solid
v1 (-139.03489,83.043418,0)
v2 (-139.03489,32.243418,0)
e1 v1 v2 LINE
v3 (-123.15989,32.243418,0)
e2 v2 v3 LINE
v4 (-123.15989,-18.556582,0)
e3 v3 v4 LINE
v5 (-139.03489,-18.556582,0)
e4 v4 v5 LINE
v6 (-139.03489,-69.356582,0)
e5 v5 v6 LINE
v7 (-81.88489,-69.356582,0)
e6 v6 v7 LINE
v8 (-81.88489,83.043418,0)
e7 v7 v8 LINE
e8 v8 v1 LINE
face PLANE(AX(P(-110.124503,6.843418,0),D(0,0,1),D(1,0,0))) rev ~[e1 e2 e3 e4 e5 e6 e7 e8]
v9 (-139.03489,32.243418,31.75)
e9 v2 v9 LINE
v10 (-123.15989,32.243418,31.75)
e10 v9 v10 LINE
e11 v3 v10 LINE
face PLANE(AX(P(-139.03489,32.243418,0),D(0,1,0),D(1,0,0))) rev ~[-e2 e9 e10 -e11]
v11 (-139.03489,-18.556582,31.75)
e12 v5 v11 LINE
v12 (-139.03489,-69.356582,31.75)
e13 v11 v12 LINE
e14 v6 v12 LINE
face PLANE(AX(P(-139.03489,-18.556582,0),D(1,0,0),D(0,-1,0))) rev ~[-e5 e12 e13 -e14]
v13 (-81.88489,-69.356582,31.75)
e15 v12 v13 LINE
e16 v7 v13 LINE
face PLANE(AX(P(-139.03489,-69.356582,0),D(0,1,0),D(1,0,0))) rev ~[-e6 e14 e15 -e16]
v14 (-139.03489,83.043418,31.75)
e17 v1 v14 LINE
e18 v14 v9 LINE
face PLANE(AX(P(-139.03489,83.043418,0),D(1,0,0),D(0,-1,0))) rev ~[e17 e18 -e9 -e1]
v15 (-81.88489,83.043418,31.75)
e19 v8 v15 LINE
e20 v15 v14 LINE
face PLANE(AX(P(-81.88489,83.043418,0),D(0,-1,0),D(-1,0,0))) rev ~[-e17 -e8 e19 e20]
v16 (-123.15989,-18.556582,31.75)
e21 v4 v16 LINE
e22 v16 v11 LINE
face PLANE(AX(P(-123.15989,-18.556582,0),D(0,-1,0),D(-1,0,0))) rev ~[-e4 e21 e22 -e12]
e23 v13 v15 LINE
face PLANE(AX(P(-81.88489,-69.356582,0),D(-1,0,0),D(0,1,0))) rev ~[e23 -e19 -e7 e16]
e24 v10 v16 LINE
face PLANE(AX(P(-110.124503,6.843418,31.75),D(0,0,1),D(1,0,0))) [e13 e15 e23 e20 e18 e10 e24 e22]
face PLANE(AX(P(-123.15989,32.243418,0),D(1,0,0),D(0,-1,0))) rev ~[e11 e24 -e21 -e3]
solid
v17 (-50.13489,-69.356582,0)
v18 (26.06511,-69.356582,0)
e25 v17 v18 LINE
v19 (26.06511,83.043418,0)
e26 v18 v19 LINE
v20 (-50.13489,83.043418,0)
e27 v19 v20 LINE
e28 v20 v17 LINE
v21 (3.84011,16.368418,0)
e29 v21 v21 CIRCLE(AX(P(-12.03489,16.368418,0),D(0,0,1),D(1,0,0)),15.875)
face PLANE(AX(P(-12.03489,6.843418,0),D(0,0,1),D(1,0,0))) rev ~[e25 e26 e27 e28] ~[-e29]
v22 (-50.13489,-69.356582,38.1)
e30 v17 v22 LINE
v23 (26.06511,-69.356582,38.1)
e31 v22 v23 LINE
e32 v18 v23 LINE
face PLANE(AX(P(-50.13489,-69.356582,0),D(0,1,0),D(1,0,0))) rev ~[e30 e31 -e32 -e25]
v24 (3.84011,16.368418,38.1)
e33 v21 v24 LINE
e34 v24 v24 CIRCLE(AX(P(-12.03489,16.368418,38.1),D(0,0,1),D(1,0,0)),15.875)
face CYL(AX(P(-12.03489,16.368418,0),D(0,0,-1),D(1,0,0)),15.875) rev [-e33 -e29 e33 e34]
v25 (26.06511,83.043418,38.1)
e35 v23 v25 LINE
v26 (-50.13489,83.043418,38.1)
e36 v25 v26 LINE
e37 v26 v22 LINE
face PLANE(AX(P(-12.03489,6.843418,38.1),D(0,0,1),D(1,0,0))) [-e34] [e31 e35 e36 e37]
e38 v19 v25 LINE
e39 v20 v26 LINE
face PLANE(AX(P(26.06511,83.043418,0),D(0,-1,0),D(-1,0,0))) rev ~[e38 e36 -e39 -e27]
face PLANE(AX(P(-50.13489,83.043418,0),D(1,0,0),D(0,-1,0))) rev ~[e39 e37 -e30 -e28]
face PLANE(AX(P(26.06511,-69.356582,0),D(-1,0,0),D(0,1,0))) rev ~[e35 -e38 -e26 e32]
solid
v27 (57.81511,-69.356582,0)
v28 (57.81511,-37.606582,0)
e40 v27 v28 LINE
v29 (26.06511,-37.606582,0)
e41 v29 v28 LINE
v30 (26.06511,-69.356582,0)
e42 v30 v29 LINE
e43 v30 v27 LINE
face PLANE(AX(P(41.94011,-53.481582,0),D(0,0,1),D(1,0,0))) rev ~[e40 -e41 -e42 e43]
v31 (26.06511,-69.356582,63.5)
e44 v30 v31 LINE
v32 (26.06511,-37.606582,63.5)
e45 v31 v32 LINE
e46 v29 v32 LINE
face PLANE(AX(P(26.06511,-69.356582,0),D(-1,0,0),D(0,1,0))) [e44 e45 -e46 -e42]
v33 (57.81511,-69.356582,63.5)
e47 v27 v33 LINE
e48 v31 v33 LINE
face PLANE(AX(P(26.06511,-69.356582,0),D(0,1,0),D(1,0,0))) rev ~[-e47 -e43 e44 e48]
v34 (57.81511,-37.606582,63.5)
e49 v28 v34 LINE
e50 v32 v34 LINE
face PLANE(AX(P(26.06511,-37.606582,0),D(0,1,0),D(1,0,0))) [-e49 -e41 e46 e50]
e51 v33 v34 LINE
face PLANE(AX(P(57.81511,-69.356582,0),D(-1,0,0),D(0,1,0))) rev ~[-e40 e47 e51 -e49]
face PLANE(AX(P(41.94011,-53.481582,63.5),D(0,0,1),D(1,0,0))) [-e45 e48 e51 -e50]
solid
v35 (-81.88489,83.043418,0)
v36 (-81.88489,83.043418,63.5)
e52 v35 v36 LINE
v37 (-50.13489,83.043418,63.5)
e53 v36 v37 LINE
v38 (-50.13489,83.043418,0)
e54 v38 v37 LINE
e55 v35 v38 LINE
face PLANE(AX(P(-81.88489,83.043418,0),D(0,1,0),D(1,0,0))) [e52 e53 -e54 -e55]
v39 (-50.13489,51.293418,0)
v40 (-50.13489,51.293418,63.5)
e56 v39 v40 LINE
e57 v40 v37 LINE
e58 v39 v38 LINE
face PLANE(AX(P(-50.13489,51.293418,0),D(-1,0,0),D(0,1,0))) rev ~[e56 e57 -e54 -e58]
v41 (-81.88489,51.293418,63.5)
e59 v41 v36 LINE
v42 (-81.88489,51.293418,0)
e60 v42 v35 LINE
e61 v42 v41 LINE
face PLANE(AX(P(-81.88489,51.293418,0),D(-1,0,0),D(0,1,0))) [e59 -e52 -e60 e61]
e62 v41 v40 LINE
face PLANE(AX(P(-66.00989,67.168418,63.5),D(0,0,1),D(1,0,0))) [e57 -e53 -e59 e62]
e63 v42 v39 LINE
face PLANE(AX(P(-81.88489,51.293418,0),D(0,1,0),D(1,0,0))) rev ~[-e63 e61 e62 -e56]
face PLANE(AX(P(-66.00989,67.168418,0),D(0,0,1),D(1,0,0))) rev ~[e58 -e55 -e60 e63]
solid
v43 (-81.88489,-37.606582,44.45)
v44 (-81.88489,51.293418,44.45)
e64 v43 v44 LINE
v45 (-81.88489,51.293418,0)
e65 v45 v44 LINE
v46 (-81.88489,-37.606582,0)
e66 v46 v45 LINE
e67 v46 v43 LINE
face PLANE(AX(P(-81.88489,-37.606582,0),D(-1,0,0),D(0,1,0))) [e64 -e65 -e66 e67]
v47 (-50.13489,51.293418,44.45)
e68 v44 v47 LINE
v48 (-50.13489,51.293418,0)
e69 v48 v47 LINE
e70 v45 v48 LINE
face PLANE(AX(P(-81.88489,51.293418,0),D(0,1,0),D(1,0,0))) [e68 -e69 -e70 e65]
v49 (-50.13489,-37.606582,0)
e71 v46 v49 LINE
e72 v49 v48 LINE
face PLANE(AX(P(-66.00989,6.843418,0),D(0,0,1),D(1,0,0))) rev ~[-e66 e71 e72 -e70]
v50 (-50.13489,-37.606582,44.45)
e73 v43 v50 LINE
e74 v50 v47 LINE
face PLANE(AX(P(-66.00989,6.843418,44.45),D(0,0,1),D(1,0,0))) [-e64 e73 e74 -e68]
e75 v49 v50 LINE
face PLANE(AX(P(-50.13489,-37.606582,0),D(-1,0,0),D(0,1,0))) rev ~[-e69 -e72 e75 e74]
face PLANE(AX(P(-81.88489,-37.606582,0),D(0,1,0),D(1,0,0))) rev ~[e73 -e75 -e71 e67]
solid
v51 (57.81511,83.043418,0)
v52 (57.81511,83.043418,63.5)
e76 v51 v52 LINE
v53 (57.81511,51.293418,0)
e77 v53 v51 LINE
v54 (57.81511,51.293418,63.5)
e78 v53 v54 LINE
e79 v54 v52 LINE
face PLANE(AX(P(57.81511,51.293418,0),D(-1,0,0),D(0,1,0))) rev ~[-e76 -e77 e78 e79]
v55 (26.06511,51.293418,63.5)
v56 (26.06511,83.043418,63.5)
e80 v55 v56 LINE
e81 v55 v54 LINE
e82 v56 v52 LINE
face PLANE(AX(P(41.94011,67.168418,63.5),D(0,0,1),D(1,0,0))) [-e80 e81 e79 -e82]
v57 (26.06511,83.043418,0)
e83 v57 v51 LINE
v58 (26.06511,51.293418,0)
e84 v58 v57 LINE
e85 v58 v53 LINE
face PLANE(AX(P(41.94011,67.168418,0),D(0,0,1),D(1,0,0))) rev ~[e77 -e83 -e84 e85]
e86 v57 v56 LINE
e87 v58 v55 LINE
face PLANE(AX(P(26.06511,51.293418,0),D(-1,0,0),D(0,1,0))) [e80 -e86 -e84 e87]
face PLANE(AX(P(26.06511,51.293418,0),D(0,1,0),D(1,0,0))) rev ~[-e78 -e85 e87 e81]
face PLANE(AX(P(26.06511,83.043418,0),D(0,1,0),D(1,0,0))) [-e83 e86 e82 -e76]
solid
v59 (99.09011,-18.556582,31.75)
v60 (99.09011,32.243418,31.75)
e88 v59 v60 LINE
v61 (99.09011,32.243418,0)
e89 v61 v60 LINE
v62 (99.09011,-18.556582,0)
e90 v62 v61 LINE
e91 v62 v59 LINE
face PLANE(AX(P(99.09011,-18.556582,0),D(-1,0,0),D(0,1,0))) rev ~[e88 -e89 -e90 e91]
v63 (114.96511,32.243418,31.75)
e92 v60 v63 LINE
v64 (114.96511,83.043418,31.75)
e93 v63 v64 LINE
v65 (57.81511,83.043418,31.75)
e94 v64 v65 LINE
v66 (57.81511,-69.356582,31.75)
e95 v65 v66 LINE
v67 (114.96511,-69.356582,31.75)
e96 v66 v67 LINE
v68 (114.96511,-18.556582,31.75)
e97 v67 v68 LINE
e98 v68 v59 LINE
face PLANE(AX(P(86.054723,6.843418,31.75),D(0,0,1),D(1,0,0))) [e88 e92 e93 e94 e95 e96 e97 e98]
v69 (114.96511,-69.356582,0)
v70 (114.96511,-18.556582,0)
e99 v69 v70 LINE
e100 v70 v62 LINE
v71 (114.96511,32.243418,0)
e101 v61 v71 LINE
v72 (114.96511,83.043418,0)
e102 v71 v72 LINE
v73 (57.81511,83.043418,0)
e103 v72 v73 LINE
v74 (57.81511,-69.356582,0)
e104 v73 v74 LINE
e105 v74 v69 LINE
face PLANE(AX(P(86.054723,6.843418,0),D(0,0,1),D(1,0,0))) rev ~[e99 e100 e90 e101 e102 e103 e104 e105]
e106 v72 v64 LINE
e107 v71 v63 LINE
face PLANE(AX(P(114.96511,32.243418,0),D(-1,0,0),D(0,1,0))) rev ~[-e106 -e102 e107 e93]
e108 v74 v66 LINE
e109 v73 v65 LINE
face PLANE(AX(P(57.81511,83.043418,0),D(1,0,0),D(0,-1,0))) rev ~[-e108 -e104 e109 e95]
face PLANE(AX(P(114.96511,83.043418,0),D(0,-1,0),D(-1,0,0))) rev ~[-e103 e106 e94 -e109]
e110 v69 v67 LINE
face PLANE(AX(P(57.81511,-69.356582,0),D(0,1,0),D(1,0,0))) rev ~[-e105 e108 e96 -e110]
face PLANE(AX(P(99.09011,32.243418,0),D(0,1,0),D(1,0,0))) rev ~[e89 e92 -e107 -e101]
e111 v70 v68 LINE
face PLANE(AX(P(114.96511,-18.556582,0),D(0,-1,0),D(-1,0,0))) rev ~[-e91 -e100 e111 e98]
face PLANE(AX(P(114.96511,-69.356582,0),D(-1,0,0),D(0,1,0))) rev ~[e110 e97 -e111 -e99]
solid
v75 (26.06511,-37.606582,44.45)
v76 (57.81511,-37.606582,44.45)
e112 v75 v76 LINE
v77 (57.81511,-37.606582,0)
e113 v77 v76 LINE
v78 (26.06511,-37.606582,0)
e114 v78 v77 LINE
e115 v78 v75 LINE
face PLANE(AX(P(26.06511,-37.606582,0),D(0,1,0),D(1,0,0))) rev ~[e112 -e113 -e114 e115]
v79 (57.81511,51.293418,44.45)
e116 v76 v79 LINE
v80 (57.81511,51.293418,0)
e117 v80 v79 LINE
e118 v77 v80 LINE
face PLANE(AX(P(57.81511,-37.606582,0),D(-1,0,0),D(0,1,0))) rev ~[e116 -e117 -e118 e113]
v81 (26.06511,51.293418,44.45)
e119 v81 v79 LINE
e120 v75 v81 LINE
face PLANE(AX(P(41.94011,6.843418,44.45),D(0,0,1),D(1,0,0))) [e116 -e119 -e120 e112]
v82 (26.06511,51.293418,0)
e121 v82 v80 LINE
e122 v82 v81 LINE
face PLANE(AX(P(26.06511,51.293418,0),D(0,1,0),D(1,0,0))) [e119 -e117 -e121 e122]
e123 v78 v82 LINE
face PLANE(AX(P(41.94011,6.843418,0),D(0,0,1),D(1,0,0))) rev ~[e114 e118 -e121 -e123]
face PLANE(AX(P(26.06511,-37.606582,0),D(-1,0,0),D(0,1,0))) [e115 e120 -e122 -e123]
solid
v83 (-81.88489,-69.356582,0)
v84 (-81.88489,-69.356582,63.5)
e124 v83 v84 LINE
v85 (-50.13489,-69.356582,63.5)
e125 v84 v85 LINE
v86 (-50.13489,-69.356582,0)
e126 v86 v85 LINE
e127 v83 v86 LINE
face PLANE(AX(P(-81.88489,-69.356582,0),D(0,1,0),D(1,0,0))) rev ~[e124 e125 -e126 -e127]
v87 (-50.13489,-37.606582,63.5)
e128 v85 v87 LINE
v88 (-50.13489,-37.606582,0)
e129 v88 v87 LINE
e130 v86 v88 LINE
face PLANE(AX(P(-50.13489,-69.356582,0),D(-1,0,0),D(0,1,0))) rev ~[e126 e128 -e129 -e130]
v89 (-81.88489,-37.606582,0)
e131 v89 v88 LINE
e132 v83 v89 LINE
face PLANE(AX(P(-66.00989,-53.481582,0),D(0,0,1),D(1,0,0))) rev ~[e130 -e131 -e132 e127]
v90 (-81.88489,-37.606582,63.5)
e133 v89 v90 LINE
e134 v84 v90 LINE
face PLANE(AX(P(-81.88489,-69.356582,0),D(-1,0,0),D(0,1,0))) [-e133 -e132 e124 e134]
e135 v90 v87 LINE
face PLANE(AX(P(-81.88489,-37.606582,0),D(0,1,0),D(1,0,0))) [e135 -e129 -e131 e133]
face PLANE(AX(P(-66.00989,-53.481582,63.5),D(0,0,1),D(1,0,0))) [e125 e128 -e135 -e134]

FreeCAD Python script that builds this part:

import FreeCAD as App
import Part
import Sketcher
from FreeCAD import Vector
Q = App.Units.Quantity


def add_polygon(sketch, points):
    """Adds a closed chain of lines whose ends are joined by coincident constraints."""
    first, n = sketch.GeometryCount, len(points)
    for a, b in zip(points, points[1:] + points[:1]):
        sketch.addGeometry(Part.LineSegment(App.Vector(*a, 0), App.Vector(*b, 0)), False)
    for i in range(n):
        sketch.addConstraint(Sketcher.Constraint("Coincident", first + i, 2, first + (i + 1) % n, 1))

doc = App.newDocument("Part")
params = doc.addObject("Spreadsheet::Sheet", "Params")
for row, (alias, value) in enumerate([
    ("sketch1_height", "2 in"),
    ("sketch1_width", "2.25 in"),
    ("sketch1_width2", "0.625 in"),
    ("pad1_length", "1.25 in"),
    ("sketch2_diameter", "1.25 in"),
    ("sketch2_width", "3 in"),
    ("sketch2_height", "6 in"),
    ("pad2_length", "1.5 in"),
    ("sketch3_height", "3.5 in"),
    ("sketch3_width", "1.25 in"),
    ("pad3_length", "1.75 in"),
    ("sketch4_width", "1.25 in"),
    ("pad4_length", "2.5 in"),
], start=1):
    params.set(f"A{row}", alias)
    params.set(f"B{row}", "=" + value)
    params.setAlias(f"B{row}", alias)

body = doc.addObject("PartDesign::Body", "Body")
body.AllowCompound = True

sketch1 = body.newObject("Sketcher::SketchObject", "Sketch")
sketch1.AttachmentSupport = (doc.getObject("XY_Plane"), [""])
sketch1.MapMode = "FlatFace"
add_polygon(sketch1, [(-82, 83), (-139, 83), (-139, 32), (-123, 32), (-123, -19), (-139, -19), (-139, -69), (-82, -69)])
add_polygon(sketch1, [(115, 83), (58, 83), (58, -69), (115, -69), (115, -19), (99, -19), (99, 32), (115, 32)])
sketch1.addConstraint([
    Sketcher.Constraint("Horizontal", 0),
    Sketcher.Constraint("Vertical", 1),
    Sketcher.Constraint("Horizontal", 2),
    Sketcher.Constraint("Vertical", 3),
    Sketcher.Constraint("Horizontal", 4),
    Sketcher.Constraint("Vertical", 5),
    Sketcher.Constraint("Horizontal", 6),
    Sketcher.Constraint("Vertical", 7),
    Sketcher.Constraint("Horizontal", 8),
    Sketcher.Constraint("Vertical", 9),
    Sketcher.Constraint("Horizontal", 10),
    Sketcher.Constraint("Vertical", 11),
    Sketcher.Constraint("Horizontal", 12),
    Sketcher.Constraint("Vertical", 13),
    Sketcher.Constraint("Horizontal", 14),
    Sketcher.Constraint("Vertical", 15),
    Sketcher.Constraint("Horizontal", 7, 2, 8, 2),
    Sketcher.Constraint("Horizontal", 6, 2, 9, 2),
    Sketcher.Constraint("Horizontal", 4, 2, 11, 2),
    Sketcher.Constraint("Horizontal", 2, 2, 13, 2),
    Sketcher.Constraint("Vertical", 1, 2, 4, 2),
    Sketcher.Constraint("Vertical", 11, 2, 14, 2),
    Sketcher.Constraint("Equal", 6, 8),
    Sketcher.Constraint("Equal", 4, 12),
    Sketcher.Constraint("Equal", 1, 3),
    Sketcher.Constraint("Equal", 3, 5),
    Sketcher.Constraint("DistanceY", 1, 2, 1, 1, Q("2 in")),
    Sketcher.Constraint("DistanceX", 0, 2, 0, 1, Q("2.25 in")),
    Sketcher.Constraint("DistanceX", 7, 2, 8, 2, Q("5.5 in")),
    Sketcher.Constraint("DistanceX", 2, 1, 2, 2, Q("0.625 in")),
    Sketcher.Constraint("DistanceX", 0, 2, -1, 1, Q("139.03489 mm")),
    Sketcher.Constraint("DistanceY", -1, 1, 0, 2, Q("83.043418 mm")),
])
sketch1.setExpression("Constraints[42]", "Params.sketch1_height")
sketch1.setExpression("Constraints[43]", "Params.sketch1_width")
sketch1.setExpression("Constraints[45]", "Params.sketch1_width2")
pad1 = body.newObject("PartDesign::Pad", "Pad")
pad1.Profile = sketch1
pad1.setExpression("Length", "Params.pad1_length")
body2 = doc.addObject("PartDesign::Body", "Body001")

sketch2 = body2.newObject("Sketcher::SketchObject", "Sketch001")
sketch2.AttachmentSupport = (doc.getObject("XY_Plane001"), [""])
sketch2.MapMode = "FlatFace"
add_polygon(sketch2, [(26, 83), (-50, 83), (-50, -69), (26, -69)])
sketch2.addGeometry(Part.Circle(Vector(-12, 16, 0), Vector(0, 0, 1), 16), False)
sketch2.addConstraint([
    Sketcher.Constraint("Horizontal", 0),
    Sketcher.Constraint("Vertical", 1),
    Sketcher.Constraint("Horizontal", 2),
    Sketcher.Constraint("Vertical", 3),
    Sketcher.Constraint("Diameter", 4, Q("1.25 in")),
    Sketcher.Constraint("DistanceX", 0, 2, 0, 1, Q("3 in")),
    Sketcher.Constraint("DistanceY", 1, 2, 1, 1, Q("6 in")),
    Sketcher.Constraint("DistanceX", 0, 2, 4, 3, Q("1.5 in")),
    Sketcher.Constraint("DistanceY", 4, 3, 0, 2, Q("2.625 in")),
    Sketcher.Constraint("DistanceX", 4, 3, -1, 1, Q("12.03489 mm")),
    Sketcher.Constraint("DistanceY", -1, 1, 0, 2, Q("83.043418 mm")),
])
sketch2.setExpression("Constraints[8]", "Params.sketch2_diameter")
sketch2.setExpression("Constraints[9]", "Params.sketch2_width")
sketch2.setExpression("Constraints[10]", "Params.sketch2_height")
pad2 = body2.newObject("PartDesign::Pad", "Pad001")
pad2.Profile = sketch2
pad2.setExpression("Length", "Params.pad2_length")
body3 = doc.addObject("PartDesign::Body", "Body002")
body3.AllowCompound = True

sketch3 = body3.newObject("Sketcher::SketchObject", "Sketch002")
sketch3.AttachmentSupport = (doc.getObject("XY_Plane002"), [""])
sketch3.MapMode = "FlatFace"
add_polygon(sketch3, [(-82, 51), (-82, -38), (-50, -38), (-50, 51)])
add_polygon(sketch3, [(26, 51), (26, -38), (58, -38), (58, 51)])
sketch3.addConstraint([
    Sketcher.Constraint("Vertical", 0),
    Sketcher.Constraint("Horizontal", 1),
    Sketcher.Constraint("Vertical", 2),
    Sketcher.Constraint("Horizontal", 3),
    Sketcher.Constraint("Vertical", 4),
    Sketcher.Constraint("Horizontal", 5),
    Sketcher.Constraint("Vertical", 6),
    Sketcher.Constraint("Horizontal", 7),
    Sketcher.Constraint("Horizontal", 1, 2, 4, 2),
    Sketcher.Constraint("Horizontal", 3, 2, 6, 2),
    Sketcher.Constraint("Equal", 3, 5),
    Sketcher.Constraint("DistanceY", 0, 2, 0, 1, Q("3.5 in")),
    Sketcher.Constraint("DistanceX", 1, 2, 4, 2, Q("3 in")),
    Sketcher.Constraint("DistanceX", 1, 1, 1, 2, Q("1.25 in")),
    Sketcher.Constraint("DistanceX", 0, 2, -1, 1, Q("81.88489 mm")),
    Sketcher.Constraint("DistanceY", -1, 1, 2, 2, Q("51.293418 mm")),
])
sketch3.setExpression("Constraints[19]", "Params.sketch3_height")
sketch3.setExpression("Constraints[21]", "Params.sketch3_width")
pad3 = body3.newObject("PartDesign::Pad", "Pad002")
pad3.Profile = sketch3
pad3.setExpression("Length", "Params.pad3_length")
body4 = doc.addObject("PartDesign::Body", "Body003")
body4.AllowCompound = True

sketch4 = body4.newObject("Sketcher::SketchObject", "Sketch003")
sketch4.AttachmentSupport = (doc.getObject("XY_Plane003"), [""])
sketch4.MapMode = "FlatFace"
add_polygon(sketch4, [(-82, 83), (-82, 51), (-50, 51), (-50, 83)])
add_polygon(sketch4, [(-82, -38), (-82, -69), (-50, -69), (-50, -38)])
add_polygon(sketch4, [(26, 83), (26, 51), (58, 51), (58, 83)])
add_polygon(sketch4, [(26, -38), (26, -69), (58, -69), (58, -38)])
sketch4.addConstraint([
    Sketcher.Constraint("Vertical", 0),
    Sketcher.Constraint("Horizontal", 1),
    Sketcher.Constraint("Vertical", 2),
    Sketcher.Constraint("Horizontal", 3),
    Sketcher.Constraint("Vertical", 4),
    Sketcher.Constraint("Horizontal", 5),
    Sketcher.Constraint("Vertical", 6),
    Sketcher.Constraint("Horizontal", 7),
    Sketcher.Constraint("Vertical", 8),
    Sketcher.Constraint("Horizontal", 9),
    Sketcher.Constraint("Vertical", 10),
    Sketcher.Constraint("Horizontal", 11),
    Sketcher.Constraint("Vertical", 12),
    Sketcher.Constraint("Horizontal", 13),
    Sketcher.Constraint("Vertical", 14),
    Sketcher.Constraint("Horizontal", 15),
    Sketcher.Constraint("Horizontal", 1, 2, 8, 2),
    Sketcher.Constraint("Horizontal", 3, 2, 10, 2),
    Sketcher.Constraint("Horizontal", 5, 2, 12, 2),
    Sketcher.Constraint("Horizontal", 7, 2, 14, 2),
    Sketcher.Constraint("Vertical", 3, 2, 4, 2),
    Sketcher.Constraint("Vertical", 2, 2, 5, 2),
    Sketcher.Constraint("Vertical", 11, 2, 12, 2),
    Sketcher.Constraint("Vertical", 10, 2, 13, 2),
    Sketcher.Constraint("Equal", 7, 9),
    Sketcher.Constraint("Equal", 15, 0),
    Sketcher.Constraint("Equal", 2, 4),
    Sketcher.Constraint("DistanceY", 4, 2, 3, 2, Q("6 in")),
    Sketcher.Constraint("DistanceX", 1, 2, 8, 2, Q("3 in")),
    Sketcher.Constraint("DistanceX", 1, 1, 1, 2, Q("1.25 in")),
    Sketcher.Constraint("DistanceX", 0, 2, -1, 1, Q("81.88489 mm")),
    Sketcher.Constraint("DistanceY", -1, 1, 0, 2, Q("51.293418 mm")),
])
sketch4.setExpression("Constraints[45]", "Params.sketch4_width")
pad4 = body4.newObject("PartDesign::Pad", "Pad003")
pad4.Profile = sketch4
pad4.setExpression("Length", "Params.pad4_length")

doc.recompute()
